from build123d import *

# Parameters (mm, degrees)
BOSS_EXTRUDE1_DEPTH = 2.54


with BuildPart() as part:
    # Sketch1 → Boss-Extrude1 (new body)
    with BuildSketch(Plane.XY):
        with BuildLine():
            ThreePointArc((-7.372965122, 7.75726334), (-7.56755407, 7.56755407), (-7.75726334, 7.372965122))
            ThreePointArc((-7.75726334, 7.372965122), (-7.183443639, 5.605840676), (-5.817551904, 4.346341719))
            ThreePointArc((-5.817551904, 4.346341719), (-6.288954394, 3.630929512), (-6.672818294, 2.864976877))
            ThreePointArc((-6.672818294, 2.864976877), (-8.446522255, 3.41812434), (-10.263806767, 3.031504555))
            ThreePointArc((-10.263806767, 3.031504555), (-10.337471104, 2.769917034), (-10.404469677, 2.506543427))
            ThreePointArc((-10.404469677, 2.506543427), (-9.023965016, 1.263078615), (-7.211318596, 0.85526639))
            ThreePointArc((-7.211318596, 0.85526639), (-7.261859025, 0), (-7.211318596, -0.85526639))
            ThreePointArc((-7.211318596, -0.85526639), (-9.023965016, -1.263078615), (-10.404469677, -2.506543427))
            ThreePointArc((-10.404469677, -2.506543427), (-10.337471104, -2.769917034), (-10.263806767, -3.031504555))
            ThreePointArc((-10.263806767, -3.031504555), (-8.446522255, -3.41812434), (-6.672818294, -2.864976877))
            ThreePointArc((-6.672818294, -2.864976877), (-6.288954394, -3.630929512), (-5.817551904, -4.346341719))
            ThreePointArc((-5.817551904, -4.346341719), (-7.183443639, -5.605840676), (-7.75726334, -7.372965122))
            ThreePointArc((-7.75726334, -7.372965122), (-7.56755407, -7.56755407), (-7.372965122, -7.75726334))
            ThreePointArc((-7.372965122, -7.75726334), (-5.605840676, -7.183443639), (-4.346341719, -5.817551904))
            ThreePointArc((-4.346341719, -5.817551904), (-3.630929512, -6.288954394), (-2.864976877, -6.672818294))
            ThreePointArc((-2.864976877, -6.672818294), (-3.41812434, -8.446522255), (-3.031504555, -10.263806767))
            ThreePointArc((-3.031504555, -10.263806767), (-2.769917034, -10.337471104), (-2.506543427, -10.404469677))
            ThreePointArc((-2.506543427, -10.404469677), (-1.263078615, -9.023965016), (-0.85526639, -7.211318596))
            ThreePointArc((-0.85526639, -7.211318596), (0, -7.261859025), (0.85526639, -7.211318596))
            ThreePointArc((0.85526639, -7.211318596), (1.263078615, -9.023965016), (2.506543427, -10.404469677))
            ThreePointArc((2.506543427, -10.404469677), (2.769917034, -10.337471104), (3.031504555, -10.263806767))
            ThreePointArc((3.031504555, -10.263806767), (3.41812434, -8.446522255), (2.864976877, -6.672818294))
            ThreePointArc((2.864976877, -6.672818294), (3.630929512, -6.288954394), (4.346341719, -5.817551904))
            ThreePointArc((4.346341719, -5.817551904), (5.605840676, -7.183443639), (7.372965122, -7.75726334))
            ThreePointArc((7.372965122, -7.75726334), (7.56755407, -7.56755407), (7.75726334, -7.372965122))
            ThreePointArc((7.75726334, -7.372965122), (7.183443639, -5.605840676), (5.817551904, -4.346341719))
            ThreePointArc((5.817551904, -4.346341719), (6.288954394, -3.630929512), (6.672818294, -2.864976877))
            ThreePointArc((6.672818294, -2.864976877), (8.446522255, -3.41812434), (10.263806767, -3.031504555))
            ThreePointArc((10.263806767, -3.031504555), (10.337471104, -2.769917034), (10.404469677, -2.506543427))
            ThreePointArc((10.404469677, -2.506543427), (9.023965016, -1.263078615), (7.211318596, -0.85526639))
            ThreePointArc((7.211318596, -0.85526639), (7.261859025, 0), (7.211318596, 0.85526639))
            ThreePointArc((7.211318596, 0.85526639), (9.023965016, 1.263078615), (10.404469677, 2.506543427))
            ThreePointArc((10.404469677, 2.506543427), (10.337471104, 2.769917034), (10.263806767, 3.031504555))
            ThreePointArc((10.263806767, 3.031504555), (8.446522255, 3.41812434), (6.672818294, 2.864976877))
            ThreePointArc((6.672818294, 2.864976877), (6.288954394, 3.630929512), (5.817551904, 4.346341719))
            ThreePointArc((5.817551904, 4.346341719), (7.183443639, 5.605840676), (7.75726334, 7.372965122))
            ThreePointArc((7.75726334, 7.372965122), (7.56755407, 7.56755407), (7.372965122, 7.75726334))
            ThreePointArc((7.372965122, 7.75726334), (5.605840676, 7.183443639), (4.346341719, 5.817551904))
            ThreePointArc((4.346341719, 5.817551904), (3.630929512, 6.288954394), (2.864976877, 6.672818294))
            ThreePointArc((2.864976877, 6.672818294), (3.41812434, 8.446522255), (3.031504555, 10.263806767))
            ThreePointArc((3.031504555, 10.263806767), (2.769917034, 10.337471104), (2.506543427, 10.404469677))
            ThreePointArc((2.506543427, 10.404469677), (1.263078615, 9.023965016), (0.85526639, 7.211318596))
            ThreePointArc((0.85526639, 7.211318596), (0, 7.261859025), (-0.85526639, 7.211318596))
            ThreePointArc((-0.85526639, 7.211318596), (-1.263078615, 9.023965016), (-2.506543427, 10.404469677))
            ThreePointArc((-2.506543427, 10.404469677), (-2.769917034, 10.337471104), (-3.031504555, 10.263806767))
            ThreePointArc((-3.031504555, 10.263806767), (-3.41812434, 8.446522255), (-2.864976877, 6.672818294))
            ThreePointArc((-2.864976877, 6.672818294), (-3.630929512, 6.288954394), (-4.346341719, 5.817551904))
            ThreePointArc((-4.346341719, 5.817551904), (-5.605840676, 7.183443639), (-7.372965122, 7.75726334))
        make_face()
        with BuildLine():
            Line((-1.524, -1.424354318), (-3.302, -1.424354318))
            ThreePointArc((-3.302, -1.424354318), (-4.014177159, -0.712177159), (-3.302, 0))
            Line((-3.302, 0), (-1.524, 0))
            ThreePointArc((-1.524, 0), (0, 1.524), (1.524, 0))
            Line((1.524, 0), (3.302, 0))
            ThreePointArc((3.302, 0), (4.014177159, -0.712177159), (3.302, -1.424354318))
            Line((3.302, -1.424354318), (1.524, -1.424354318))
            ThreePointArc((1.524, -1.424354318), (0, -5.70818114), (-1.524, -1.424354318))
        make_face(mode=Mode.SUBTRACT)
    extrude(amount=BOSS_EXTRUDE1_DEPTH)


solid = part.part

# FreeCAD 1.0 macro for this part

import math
import FreeCAD as App
import Part
import Sketcher

V = App.Vector
Q = App.Units.Quantity

doc = App.newDocument("Part")
body = doc.addObject("PartDesign::Body", "Body")

# Sketch on XY plane
sketch1 = doc.addObject("Sketcher::SketchObject", "Sketch")
body.addObject(sketch1)
sketch1.AttachmentSupport = (doc.XY_Plane, [""])
sketch1.MapMode = "FlatFace"
sketch1.addGeometry([
    Part.ArcOfCircle(Part.Circle(V(0.000001, -0.000001, 0), V(0, 0, 1), 10.702139), math.radians(133.545037), math.radians(136.454963)),  # 0
    Part.ArcOfCircle(Part.Circle(V(-4.094133, 7.585728, 0), V(0, 0, 1), 3.669304), math.radians(-176.675874), math.radians(-118.013887)),  # 1
    Part.ArcOfCircle(Part.Circle(V(0, 0, 0), V(0, 0, 1), 7.261859), math.radians(143.236284), math.radians(156.763716)),  # 2
    Part.ArcOfCircle(Part.Circle(V(-8.616499, -0.247241, 0), V(0, 0, 1), 3.669304), math.radians(58.013887), math.radians(116.675874)),  # 3
    Part.ArcOfCircle(Part.Circle(V(0.000002, 0, 0), V(0, 0, 1), 10.702139), math.radians(163.545037), math.radians(166.454963)),  # 4
    Part.ArcOfCircle(Part.Circle(V(-7.338487, 4.522366, 0), V(0, 0, 1), 3.669304), math.radians(-146.675874), math.radians(-88.013887)),  # 5
    Part.ArcOfCircle(Part.Circle(V(0, 0, 0), V(0, 0, 1), 7.261859), math.radians(173.236284), math.radians(186.763716)),  # 6
    Part.ArcOfCircle(Part.Circle(V(-7.338487, -4.522366, 0), V(0, 0, 1), 3.669304), math.radians(88.013887), math.radians(146.675874)),  # 7
    Part.ArcOfCircle(Part.Circle(V(0.000002, 0, 0), V(0, 0, 1), 10.702139), math.radians(-166.454963), math.radians(-163.545037)),  # 8
    Part.ArcOfCircle(Part.Circle(V(-8.616499, 0.247241, 0), V(0, 0, 1), 3.669304), math.radians(-116.675874), math.radians(-58.013887)),  # 9
    Part.ArcOfCircle(Part.Circle(V(0, 0, 0), V(0, 0, 1), 7.261859), math.radians(-156.763716), math.radians(-143.236284)),  # 10
    Part.ArcOfCircle(Part.Circle(V(-4.094133, -7.585728, 0), V(0, 0, 1), 3.669304), math.radians(118.013887), math.radians(176.675874)),  # 11
    Part.ArcOfCircle(Part.Circle(V(0.000001, 0.000001, 0), V(0, 0, 1), 10.702139), math.radians(-136.454963), math.radians(-133.545037)),  # 12
    Part.ArcOfCircle(Part.Circle(V(-7.585728, -4.094133, 0), V(0, 0, 1), 3.669304), math.radians(-86.675874), math.radians(-28.013887)),  # 13
    Part.ArcOfCircle(Part.Circle(V(0, 0, 0), V(0, 0, 1), 7.261859), math.radians(-126.763716), math.radians(-113.236284)),  # 14
    Part.ArcOfCircle(Part.Circle(V(0.247241, -8.616499, 0), V(0, 0, 1), 3.669304), math.radians(148.013887), math.radians(206.675874)),  # 15
    Part.ArcOfCircle(Part.Circle(V(0, 0.000002, 0), V(0, 0, 1), 10.702139), math.radians(-106.454963), math.radians(-103.545037)),  # 16
    Part.ArcOfCircle(Part.Circle(V(-4.522366, -7.338487, 0), V(0, 0, 1), 3.669304), math.radians(-56.675874), math.radians(1.986113)),  # 17
    Part.ArcOfCircle(Part.Circle(V(0, 0, 0), V(0, 0, 1), 7.261859), math.radians(-96.763716), math.radians(-83.236284)),  # 18
    Part.ArcOfCircle(Part.Circle(V(4.522366, -7.338487, 0), V(0, 0, 1), 3.669304), math.radians(178.013887), math.radians(236.675874)),  # 19
    Part.ArcOfCircle(Part.Circle(V(0, 0.000002, 0), V(0, 0, 1), 10.702139), math.radians(-76.454963), math.radians(-73.545037)),  # 20
    Part.ArcOfCircle(Part.Circle(V(-0.247241, -8.616499, 0), V(0, 0, 1), 3.669304), math.radians(-26.675874), math.radians(31.986113)),  # 21
    Part.ArcOfCircle(Part.Circle(V(0, 0, 0), V(0, 0, 1), 7.261859), math.radians(-66.763716), math.radians(-53.236284)),  # 22
    Part.ArcOfCircle(Part.Circle(V(7.585728, -4.094133, 0), V(0, 0, 1), 3.669304), math.radians(-151.986113), math.radians(-93.324126)),  # 23
    Part.ArcOfCircle(Part.Circle(V(-0.000001, 0.000001, 0), V(0, 0, 1), 10.702139), math.radians(-46.454963), math.radians(-43.545037)),  # 24
    Part.ArcOfCircle(Part.Circle(V(4.094133, -7.585728, 0), V(0, 0, 1), 3.669304), math.radians(3.324126), math.radians(61.986113)),  # 25
    Part.ArcOfCircle(Part.Circle(V(0, 0, 0), V(0, 0, 1), 7.261859), math.radians(-36.763716), math.radians(-23.236284)),  # 26
    Part.ArcOfCircle(Part.Circle(V(8.616499, 0.247241, 0), V(0, 0, 1), 3.669304), math.radians(-121.986113), math.radians(-63.324126)),  # 27
    Part.ArcOfCircle(Part.Circle(V(-0.000002, 0, 0), V(0, 0, 1), 10.702139), math.radians(-16.454963), math.radians(-13.545037)),  # 28
    Part.ArcOfCircle(Part.Circle(V(7.338487, -4.522366, 0), V(0, 0, 1), 3.669304), math.radians(33.324126), math.radians(91.986113)),  # 29
    Part.ArcOfCircle(Part.Circle(V(0, 0, 0), V(0, 0, 1), 7.261859), math.radians(-6.763716), math.radians(6.763716)),  # 30
    Part.ArcOfCircle(Part.Circle(V(7.338487, 4.522366, 0), V(0, 0, 1), 3.669304), math.radians(-91.986113), math.radians(-33.324126)),  # 31
    Part.ArcOfCircle(Part.Circle(V(-0.000002, 0, 0), V(0, 0, 1), 10.702139), math.radians(13.545037), math.radians(16.454963)),  # 32
    Part.ArcOfCircle(Part.Circle(V(8.616499, -0.247241, 0), V(0, 0, 1), 3.669304), math.radians(63.324126), math.radians(121.986113)),  # 33
    Part.ArcOfCircle(Part.Circle(V(0, 0, 0), V(0, 0, 1), 7.261859), math.radians(23.236284), math.radians(36.763716)),  # 34
    Part.ArcOfCircle(Part.Circle(V(4.094133, 7.585728, 0), V(0, 0, 1), 3.669304), math.radians(-61.986113), math.radians(-3.324126)),  # 35
    Part.ArcOfCircle(Part.Circle(V(-0.000001, -0.000001, 0), V(0, 0, 1), 10.702139), math.radians(43.545037), math.radians(46.454963)),  # 36
    Part.ArcOfCircle(Part.Circle(V(7.585728, 4.094133, 0), V(0, 0, 1), 3.669304), math.radians(93.324126), math.radians(151.986113)),  # 37
    Part.ArcOfCircle(Part.Circle(V(0, 0, 0), V(0, 0, 1), 7.261859), math.radians(53.236284), math.radians(66.763716)),  # 38
    Part.ArcOfCircle(Part.Circle(V(-0.247241, 8.616499, 0), V(0, 0, 1), 3.669304), math.radians(-31.986113), math.radians(26.675874)),  # 39
    Part.ArcOfCircle(Part.Circle(V(0, -0.000002, 0), V(0, 0, 1), 10.702139), math.radians(73.545037), math.radians(76.454963)),  # 40
    Part.ArcOfCircle(Part.Circle(V(4.522366, 7.338487, 0), V(0, 0, 1), 3.669304), math.radians(123.324126), math.radians(181.986113)),  # 41
    Part.ArcOfCircle(Part.Circle(V(0, 0, 0), V(0, 0, 1), 7.261859), math.radians(83.236284), math.radians(96.763716)),  # 42
    Part.ArcOfCircle(Part.Circle(V(-4.522366, 7.338487, 0), V(0, 0, 1), 3.669304), math.radians(-1.986113), math.radians(56.675874)),  # 43
    Part.ArcOfCircle(Part.Circle(V(0, -0.000002, 0), V(0, 0, 1), 10.702139), math.radians(103.545037), math.radians(106.454963)),  # 44
    Part.ArcOfCircle(Part.Circle(V(0.247241, 8.616499, 0), V(0, 0, 1), 3.669304), math.radians(153.324126), math.radians(211.986113)),  # 45
    Part.ArcOfCircle(Part.Circle(V(0, 0, 0), V(0, 0, 1), 7.261859), math.radians(113.236284), math.radians(126.763716)),  # 46
    Part.ArcOfCircle(Part.Circle(V(-7.585728, 4.094133, 0), V(0, 0, 1), 3.669304), math.radians(28.013887), math.radians(86.675874)),  # 47
    Part.ArcOfCircle(Part.Circle(V(0, -3.295181, 0), V(0, 0, 1), 2.413), math.radians(129.166711), math.radians(410.833289)),  # 48
    Part.LineSegment(V(-1.524, -1.424354, 0), V(-3.302, -1.424354, 0)),  # 49
    Part.ArcOfCircle(Part.Circle(V(-3.302, -0.712177, 0), V(0, 0, 1), 0.712177), math.radians(90), math.radians(270)),  # 50
    Part.LineSegment(V(-3.302, 0, 0), V(-1.524, 0, 0)),  # 51
    Part.ArcOfCircle(Part.Circle(V(0, 0, 0), V(0, 0, 1), 1.524), math.radians(0), math.radians(180)),  # 52
    Part.LineSegment(V(1.524, 0, 0), V(3.302, 0, 0)),  # 53
    Part.ArcOfCircle(Part.Circle(V(3.302, -0.712177, 0), V(0, 0, 1), 0.712177), math.radians(-90), math.radians(90)),  # 54
    Part.LineSegment(V(3.302, -1.424354, 0), V(1.524, -1.424354, 0)),  # 55
], False)
sketch1.addConstraint([
    Sketcher.Constraint("Coincident", 0, 2, 1, 1),
    Sketcher.Constraint("Coincident", 1, 2, 2, 1),
    Sketcher.Constraint("Coincident", 2, 2, 3, 1),
    Sketcher.Constraint("Coincident", 3, 2, 4, 1),
    Sketcher.Constraint("Coincident", 4, 2, 5, 1),
    Sketcher.Constraint("Coincident", 5, 2, 6, 1),
    Sketcher.Constraint("Coincident", 6, 2, 7, 1),
    Sketcher.Constraint("Coincident", 7, 2, 8, 1),
    Sketcher.Constraint("Coincident", 8, 2, 9, 1),
    Sketcher.Constraint("Coincident", 9, 2, 10, 1),
    Sketcher.Constraint("Coincident", 10, 2, 11, 1),
    Sketcher.Constraint("Coincident", 11, 2, 12, 1),
    Sketcher.Constraint("Coincident", 12, 2, 13, 1),
    Sketcher.Constraint("Coincident", 13, 2, 14, 1),
    Sketcher.Constraint("Coincident", 14, 2, 15, 1),
    Sketcher.Constraint("Coincident", 15, 2, 16, 1),
    Sketcher.Constraint("Coincident", 16, 2, 17, 1),
    Sketcher.Constraint("Coincident", 17, 2, 18, 1),
    Sketcher.Constraint("Coincident", 18, 2, 19, 1),
    Sketcher.Constraint("Coincident", 19, 2, 20, 1),
    Sketcher.Constraint("Coincident", 20, 2, 21, 1),
    Sketcher.Constraint("Coincident", 21, 2, 22, 1),
    Sketcher.Constraint("Coincident", 22, 2, 23, 1),
    Sketcher.Constraint("Coincident", 23, 2, 24, 1),
    Sketcher.Constraint("Coincident", 24, 2, 25, 1),
    Sketcher.Constraint("Coincident", 25, 2, 26, 1),
    Sketcher.Constraint("Coincident", 26, 2, 27, 1),
    Sketcher.Constraint("Coincident", 27, 2, 28, 1),
    Sketcher.Constraint("Coincident", 28, 2, 29, 1),
    Sketcher.Constraint("Coincident", 29, 2, 30, 1),
    Sketcher.Constraint("Coincident", 30, 2, 31, 1),
    Sketcher.Constraint("Coincident", 31, 2, 32, 1),
    Sketcher.Constraint("Coincident", 32, 2, 33, 1),
    Sketcher.Constraint("Coincident", 33, 2, 34, 1),
    Sketcher.Constraint("Coincident", 34, 2, 35, 1),
    Sketcher.Constraint("Coincident", 35, 2, 36, 1),
    Sketcher.Constraint("Coincident", 36, 2, 37, 1),
    Sketcher.Constraint("Coincident", 37, 2, 38, 1),
    Sketcher.Constraint("Coincident", 38, 2, 39, 1),
    Sketcher.Constraint("Coincident", 39, 2, 40, 1),
    Sketcher.Constraint("Coincident", 40, 2, 41, 1),
    Sketcher.Constraint("Coincident", 41, 2, 42, 1),
    Sketcher.Constraint("Coincident", 42, 2, 43, 1),
    Sketcher.Constraint("Coincident", 43, 2, 44, 1),
    Sketcher.Constraint("Coincident", 44, 2, 45, 1),
    Sketcher.Constraint("Coincident", 45, 2, 46, 1),
    Sketcher.Constraint("Coincident", 46, 2, 47, 1),
    Sketcher.Constraint("Coincident", 47, 2, 0, 1),
    Sketcher.Constraint("Coincident", 48, 1, 49, 1),
    Sketcher.Constraint("Tangent", 49, 2, 50, 2),
    Sketcher.Constraint("Tangent", 50, 1, 51, 1),
    Sketcher.Constraint("Coincident", 51, 2, 52, 2),
    Sketcher.Constraint("Coincident", 52, 1, 53, 1),
    Sketcher.Constraint("Tangent", 53, 2, 54, 2),
    Sketcher.Constraint("Tangent", 54, 1, 55, 1),
    Sketcher.Constraint("Coincident", 55, 2, 48, 2),
    Sketcher.Constraint("Horizontal", 49),
    Sketcher.Constraint("Horizontal", 51),
    Sketcher.Constraint("Horizontal", 53),
    Sketcher.Constraint("Horizontal", 55),
    Sketcher.Constraint("Coincident", 0, 3, -1, 1),
    Sketcher.Constraint("Coincident", 2, 3, -1, 1),
    Sketcher.Constraint("Coincident", 4, 3, -1, 1),
    Sketcher.Constraint("Coincident", 6, 3, -1, 1),
    Sketcher.Constraint("Coincident", 8, 3, -1, 1),
    Sketcher.Constraint("Coincident", 10, 3, -1, 1),
    Sketcher.Constraint("Coincident", 12, 3, -1, 1),
    Sketcher.Constraint("Coincident", 14, 3, -1, 1),
    Sketcher.Constraint("Coincident", 16, 3, -1, 1),
    Sketcher.Constraint("Coincident", 18, 3, -1, 1),
    Sketcher.Constraint("Coincident", 20, 3, -1, 1),
    Sketcher.Constraint("Coincident", 22, 3, -1, 1),
    Sketcher.Constraint("Coincident", 24, 3, -1, 1),
    Sketcher.Constraint("Coincident", 26, 3, -1, 1),
    Sketcher.Constraint("Coincident", 28, 3, -1, 1),
    Sketcher.Constraint("Coincident", 30, 3, -1, 1),
    Sketcher.Constraint("Coincident", 32, 3, -1, 1),
    Sketcher.Constraint("Coincident", 34, 3, -1, 1),
    Sketcher.Constraint("Coincident", 36, 3, -1, 1),
    Sketcher.Constraint("Coincident", 38, 3, -1, 1),
    Sketcher.Constraint("Coincident", 40, 3, -1, 1),
    Sketcher.Constraint("Coincident", 42, 3, -1, 1),
    Sketcher.Constraint("Coincident", 44, 3, -1, 1),
    Sketcher.Constraint("Coincident", 46, 3, -1, 1),
    Sketcher.Constraint("Coincident", 52, 3, -1, 1),
    Sketcher.Constraint("Equal", 1, 3),
    Sketcher.Constraint("Equal", 0, 4),
    Sketcher.Constraint("Equal", 3, 5),
    Sketcher.Constraint("Equal", 2, 6),
    Sketcher.Constraint("Equal", 5, 7),
    Sketcher.Constraint("Equal", 4, 8),
    Sketcher.Constraint("Equal", 7, 9),
    Sketcher.Constraint("Equal", 6, 10),
    Sketcher.Constraint("Equal", 9, 11),
    Sketcher.Constraint("Equal", 8, 12),
    Sketcher.Constraint("Equal", 11, 13),
    Sketcher.Constraint("Equal", 10, 14),
    Sketcher.Constraint("Equal", 13, 15),
    Sketcher.Constraint("Equal", 12, 16),
    Sketcher.Constraint("Equal", 15, 17),
    Sketcher.Constraint("Equal", 14, 18),
    Sketcher.Constraint("Equal", 17, 19),
    Sketcher.Constraint("Equal", 16, 20),
    Sketcher.Constraint("Equal", 19, 21),
    Sketcher.Constraint("Equal", 18, 22),
    Sketcher.Constraint("Equal", 21, 23),
    Sketcher.Constraint("Equal", 20, 24),
    Sketcher.Constraint("Equal", 23, 25),
    Sketcher.Constraint("Equal", 22, 26),
    Sketcher.Constraint("Equal", 25, 27),
    Sketcher.Constraint("Equal", 24, 28),
    Sketcher.Constraint("Equal", 27, 29),
    Sketcher.Constraint("Equal", 26, 30),
    Sketcher.Constraint("Equal", 29, 31),
    Sketcher.Constraint("Equal", 28, 32),
    Sketcher.Constraint("Equal", 31, 33),
    Sketcher.Constraint("Equal", 30, 34),
    Sketcher.Constraint("Equal", 33, 35),
    Sketcher.Constraint("Equal", 32, 36),
    Sketcher.Constraint("Equal", 35, 37),
    Sketcher.Constraint("Equal", 34, 38),
    Sketcher.Constraint("Equal", 37, 39),
    Sketcher.Constraint("Equal", 36, 40),
    Sketcher.Constraint("Equal", 39, 41),
    Sketcher.Constraint("Equal", 38, 42),
    Sketcher.Constraint("Equal", 41, 43),
    Sketcher.Constraint("Equal", 40, 44),
    Sketcher.Constraint("Equal", 43, 45),
    Sketcher.Constraint("Equal", 42, 46),
    Sketcher.Constraint("Equal", 45, 47),
    Sketcher.Constraint("Equal", 50, 54),
    Sketcher.Constraint("Symmetric", 1, 3, 25, 3, -1, 1),
    Sketcher.Constraint("Symmetric", 3, 3, 27, 3, -1, 1),
    Sketcher.Constraint("Symmetric", 5, 3, 29, 3, -1, 1),
    Sketcher.Constraint("Symmetric", 7, 3, 31, 3, -1, 1),
    Sketcher.Constraint("Symmetric", 9, 3, 33, 3, -1, 1),
    Sketcher.Constraint("Symmetric", 11, 3, 35, 3, -1, 1),
    Sketcher.Constraint("Symmetric", 13, 3, 37, 3, -1, 1),
    Sketcher.Constraint("Symmetric", 15, 3, 39, 3, -1, 1),
    Sketcher.Constraint("Symmetric", 17, 3, 41, 3, -1, 1),
    Sketcher.Constraint("Symmetric", 19, 3, 43, 3, -1, 1),
    Sketcher.Constraint("Symmetric", 21, 3, 45, 3, -1, 1),
    Sketcher.Constraint("Symmetric", 23, 3, 47, 3, -1, 1),
    Sketcher.Constraint("Symmetric", 50, 1, 53, 2, -1, 1),
    Sketcher.Constraint("Symmetric", 17, 3, 19, 3, -2),
    Sketcher.Constraint("Symmetric", 15, 3, 21, 3, -2),
    Sketcher.Constraint("Symmetric", 13, 3, 23, 3, -2),
    Sketcher.Constraint("Symmetric", 11, 3, 25, 3, -2),
    Sketcher.Constraint("Symmetric", 9, 3, 27, 3, -2),
    Sketcher.Constraint("Symmetric", 7, 3, 29, 3, -2),
    Sketcher.Constraint("Symmetric", 48, 1, 55, 2, -2),
    Sketcher.Constraint("Vertical", 48, 1, 51, 2),
    Sketcher.Constraint("Radius", 52, Q("0.06 in")),
    Sketcher.Constraint("Radius", 48, Q("0.095 in")),
    Sketcher.Constraint("DistanceX", 49, 2, 49, 1, Q("0.07 in")),
    Sketcher.Constraint("Radius", 2, Q("0.2859 in")),
    Sketcher.Constraint("Radius", 0, 10.702139),
    Sketcher.Constraint("Radius", 1, 3.669304),
    Sketcher.Constraint("Radius", 50, 0.712177),
    Sketcher.Constraint("DistanceX", 3, 3, -1, 1, 8.616499),
    Sketcher.Constraint("DistanceY", 15, 3, -1, 1, 8.616499),
    Sketcher.Constraint("DistanceY", 3, 3, -1, 1, 0.247241),
    Sketcher.Constraint("DistanceX", -1, 1, 15, 3, 0.247241),
    Sketcher.Constraint("DistanceX", 1, 2, -1, 1, 5.817552),
    Sketcher.Constraint("DistanceX", 4, 2, -1, 1, 10.40447),
    Sketcher.Constraint("DistanceX", 5, 2, -1, 1, 7.211319),
    Sketcher.Constraint("DistanceX", 13, 2, -1, 1, 4.346342),
    Sketcher.Constraint("DistanceY", 16, 2, -1, 1, 10.40447),
    Sketcher.Constraint("DistanceY", 17, 2, -1, 1, 7.211319),
    Sketcher.Constraint("DistanceX", 1, 3, -1, 1, 4.094133),
    Sketcher.Constraint("DistanceX", 13, 3, -1, 1, 7.585728),
])
pad1 = doc.addObject("PartDesign::Pad", "Pad")
body.addObject(pad1)
pad1.Profile = sketch1
pad1.Length = Q("0.1 in")

doc.recompute()
